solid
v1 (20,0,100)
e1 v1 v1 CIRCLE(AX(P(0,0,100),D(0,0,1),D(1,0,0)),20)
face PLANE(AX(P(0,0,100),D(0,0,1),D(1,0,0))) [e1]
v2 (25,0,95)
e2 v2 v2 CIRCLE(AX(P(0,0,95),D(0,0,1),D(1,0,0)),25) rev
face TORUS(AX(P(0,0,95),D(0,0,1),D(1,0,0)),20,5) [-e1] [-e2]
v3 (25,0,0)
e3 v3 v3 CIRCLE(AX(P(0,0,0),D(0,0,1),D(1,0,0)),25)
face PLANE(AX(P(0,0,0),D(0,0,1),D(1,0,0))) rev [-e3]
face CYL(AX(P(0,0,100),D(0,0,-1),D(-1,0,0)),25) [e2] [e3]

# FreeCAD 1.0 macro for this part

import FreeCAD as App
import Part
import Sketcher

V = App.Vector
Q = App.Units.Quantity


def edges_at(feature, points):
    """Names of the edges that pass closest to the given points."""
    edges = feature.Shape.Edges
    near = lambda p: min(range(len(edges)), key=lambda i: edges[i].distToShape(Part.Vertex(*p))[0])
    return sorted({f"Edge{near(p) + 1}" for p in points})

doc = App.newDocument("Part")
params = doc.addObject("Spreadsheet::Sheet", "Params")
for row, (alias, value) in enumerate([
    ("sketch1_diameter", "50 mm"),
    ("pad1_length", "100 mm"),
    ("fillet_radius", "5 mm"),
], start=1):
    params.set(f"A{row}", alias)
    params.set(f"B{row}", "=" + value)
    params.setAlias(f"B{row}", alias)

body = doc.addObject("PartDesign::Body", "Body")

sketch1 = doc.addObject("Sketcher::SketchObject", "Sketch")
body.addObject(sketch1)
sketch1.AttachmentSupport = (doc.XY_Plane, [""])
sketch1.MapMode = "FlatFace"
sketch1.addGeometry(Part.Circle(V(0, 0, 0), V(0, 0, 1), 25), False)
sketch1.addConstraint([
    Sketcher.Constraint("Coincident", 0, 3, -1, 1),
    Sketcher.Constraint("Diameter", 0, Q("50 mm")),
])
sketch1.setExpression("Constraints[1]", "Params.sketch1_diameter")
pad1 = doc.addObject("PartDesign::Pad", "Pad")
body.addObject(pad1)
pad1.Profile = sketch1
pad1.setExpression("Length", "Params.pad1_length")
doc.recompute()

fillet = doc.addObject("PartDesign::Fillet", "Fillet")
body.addObject(fillet)
fillet.Base = (pad1, edges_at(pad1, [(-25, 0, 100)]))
fillet.setExpression("Radius", "Params.fillet_radius")

doc.recompute()
